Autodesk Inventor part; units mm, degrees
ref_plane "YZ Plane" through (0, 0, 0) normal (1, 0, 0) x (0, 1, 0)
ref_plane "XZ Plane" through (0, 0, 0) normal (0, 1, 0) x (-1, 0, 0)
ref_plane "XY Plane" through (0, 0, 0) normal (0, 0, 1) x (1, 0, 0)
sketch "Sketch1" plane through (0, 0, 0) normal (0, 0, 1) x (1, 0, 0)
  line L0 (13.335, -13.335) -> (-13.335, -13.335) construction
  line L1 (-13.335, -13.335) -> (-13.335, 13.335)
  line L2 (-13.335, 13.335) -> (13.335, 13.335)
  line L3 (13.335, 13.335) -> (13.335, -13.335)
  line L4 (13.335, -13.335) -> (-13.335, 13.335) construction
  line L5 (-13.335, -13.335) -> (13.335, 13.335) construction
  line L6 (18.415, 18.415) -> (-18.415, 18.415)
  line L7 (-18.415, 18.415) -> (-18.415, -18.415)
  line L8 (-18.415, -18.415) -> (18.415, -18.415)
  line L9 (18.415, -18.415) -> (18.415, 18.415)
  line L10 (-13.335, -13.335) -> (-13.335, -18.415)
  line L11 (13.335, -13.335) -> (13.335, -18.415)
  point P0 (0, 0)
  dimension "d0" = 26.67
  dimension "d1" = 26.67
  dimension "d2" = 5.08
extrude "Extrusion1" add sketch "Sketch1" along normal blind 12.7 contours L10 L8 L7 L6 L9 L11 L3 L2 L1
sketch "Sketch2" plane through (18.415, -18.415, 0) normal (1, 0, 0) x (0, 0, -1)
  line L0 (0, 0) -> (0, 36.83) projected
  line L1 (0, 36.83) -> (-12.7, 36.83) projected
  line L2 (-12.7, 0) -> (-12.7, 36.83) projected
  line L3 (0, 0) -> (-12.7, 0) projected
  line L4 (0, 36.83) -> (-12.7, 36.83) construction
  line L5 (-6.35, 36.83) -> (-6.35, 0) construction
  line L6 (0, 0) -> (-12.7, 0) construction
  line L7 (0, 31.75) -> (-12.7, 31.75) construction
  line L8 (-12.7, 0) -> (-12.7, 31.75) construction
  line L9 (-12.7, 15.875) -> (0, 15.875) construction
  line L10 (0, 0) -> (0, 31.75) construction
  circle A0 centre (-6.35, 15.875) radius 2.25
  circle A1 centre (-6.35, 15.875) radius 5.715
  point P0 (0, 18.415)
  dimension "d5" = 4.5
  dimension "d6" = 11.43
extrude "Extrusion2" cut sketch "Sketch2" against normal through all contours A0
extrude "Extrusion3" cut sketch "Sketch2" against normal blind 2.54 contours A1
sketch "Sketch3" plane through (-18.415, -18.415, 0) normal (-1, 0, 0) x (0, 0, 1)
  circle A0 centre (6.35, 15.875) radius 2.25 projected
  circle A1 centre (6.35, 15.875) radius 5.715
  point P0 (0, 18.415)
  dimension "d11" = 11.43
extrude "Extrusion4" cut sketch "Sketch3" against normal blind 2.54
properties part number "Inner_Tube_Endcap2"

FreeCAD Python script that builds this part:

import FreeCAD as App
import Part
import Sketcher
from FreeCAD import Vector
Q = App.Units.Quantity

doc = App.newDocument("Part")
body = doc.addObject("PartDesign::Body", "Body")

# Sketch on XY plane
sketch1 = doc.addObject("Sketcher::SketchObject", "Sketch")
body.addObject(sketch1)
sketch1.AttachmentSupport = (doc.XY_Plane, [""])
sketch1.MapMode = "FlatFace"
sketch1.addGeometry([
    Part.LineSegment(Vector(-13, -18, 0), Vector(-13, 13, 0)),  # 0
    Part.LineSegment(Vector(-13, 13, 0), Vector(13, 13, 0)),  # 1
    Part.LineSegment(Vector(13, 13, 0), Vector(13, -18, 0)),  # 2
    Part.LineSegment(Vector(13, -18, 0), Vector(18, -18, 0)),  # 3
    Part.LineSegment(Vector(18, -18, 0), Vector(18, 18, 0)),  # 4
    Part.LineSegment(Vector(18, 18, 0), Vector(-18, 18, 0)),  # 5
    Part.LineSegment(Vector(-18, 18, 0), Vector(-18, -18, 0)),  # 6
    Part.LineSegment(Vector(-18, -18, 0), Vector(-13, -18, 0)),  # 7
], False)
sketch1.addConstraint([
    Sketcher.Constraint("Coincident", 0, 2, 1, 1),
    Sketcher.Constraint("Coincident", 1, 2, 2, 1),
    Sketcher.Constraint("Coincident", 2, 2, 3, 1),
    Sketcher.Constraint("Coincident", 3, 2, 4, 1),
    Sketcher.Constraint("Coincident", 4, 2, 5, 1),
    Sketcher.Constraint("Coincident", 5, 2, 6, 1),
    Sketcher.Constraint("Coincident", 6, 2, 7, 1),
    Sketcher.Constraint("Coincident", 7, 2, 0, 1),
    Sketcher.Constraint("Vertical", 0),
    Sketcher.Constraint("Horizontal", 1),
    Sketcher.Constraint("Vertical", 2),
    Sketcher.Constraint("Horizontal", 3),
    Sketcher.Constraint("Vertical", 4),
    Sketcher.Constraint("Horizontal", 5),
    Sketcher.Constraint("Vertical", 6),
    Sketcher.Constraint("Horizontal", 7),
    Sketcher.Constraint("Symmetric", 3, 2, 5, 2, -1, 1),
    Sketcher.Constraint("Symmetric", 2, 2, 7, 2, -2),
    Sketcher.Constraint("Equal", 5, 4),
    Sketcher.Constraint("DistanceX", 3, 1, 3, 2, Q("0.2 in")),
    Sketcher.Constraint("DistanceX", 1, 1, 1, 2, Q("1.05 in")),
    Sketcher.Constraint("DistanceY", 1, 2, 4, 2, Q("0.2 in")),
])
pad1 = doc.addObject("PartDesign::Pad", "Pad")
body.addObject(pad1)
pad1.Profile = sketch1
pad1.Length = Q("0.5 in")

# Sketch on YZ plane
sketch2 = doc.addObject("Sketcher::SketchObject", "Sketch001")
body.addObject(sketch2)
sketch2.AttachmentSupport = (doc.YZ_Plane, [""])
sketch2.MapMode = "FlatFace"
sketch2.AttachmentOffset = App.Placement(Vector(0, 0, 0.725 * 25.4), App.Rotation())
sketch2.addGeometry(Part.Circle(Vector(-2.5, 6.3, 0), Vector(0, 0, 1), 2.2), False)
sketch2.addConstraint([
    Sketcher.Constraint("Diameter", 0, 4.5),
    Sketcher.Constraint("DistanceX", 0, 3, -1, 1, Q("0.1 in")),
    Sketcher.Constraint("DistanceY", -1, 1, 0, 3, Q("0.25 in")),
])
pocket1 = doc.addObject("PartDesign::Pocket", "Pocket")
body.addObject(pocket1)
pocket1.Profile = sketch2
pocket1.Type = "ThroughAll"

# Sketch on YZ plane
sketch3 = doc.addObject("Sketcher::SketchObject", "Sketch002")
body.addObject(sketch3)
sketch3.AttachmentSupport = (doc.YZ_Plane, [""])
sketch3.MapMode = "FlatFace"
sketch3.AttachmentOffset = App.Placement(Vector(0, 0, 0.725 * 25.4), App.Rotation())
sketch3.addGeometry([
    Part.Circle(Vector(-2.5, 6.3, 0), Vector(0, 0, 1), 5.7),
    Part.Circle(Vector(-2.5, 6.3, 0), Vector(0, 0, 1), 2.2),
], False)
sketch3.addConstraint([
    Sketcher.Constraint("Coincident", 1, 3, 0, 3),
    Sketcher.Constraint("Diameter", 0, Q("0.45 in")),
    Sketcher.Constraint("Diameter", 1, 4.5),
    Sketcher.Constraint("DistanceX", 0, 3, -1, 1, Q("0.1 in")),
    Sketcher.Constraint("DistanceY", -1, 1, 0, 3, Q("0.25 in")),
])
pocket2 = doc.addObject("PartDesign::Pocket", "Pocket001")
body.addObject(pocket2)
pocket2.Profile = sketch3
pocket2.Length = Q("0.1 in")

# Sketch on YZ plane
sketch4 = doc.addObject("Sketcher::SketchObject", "Sketch003")
body.addObject(sketch4)
sketch4.AttachmentSupport = (doc.YZ_Plane, [""])
sketch4.MapMode = "FlatFace"
sketch4.AttachmentOffset = App.Placement(Vector(0, 0, -0.725 * 25.4), App.Rotation())
sketch4.addGeometry([
    Part.Circle(Vector(-2.5, 6.3, 0), Vector(0, 0, 1), 5.7),
    Part.Circle(Vector(-2.5, 6.3, 0), Vector(0, 0, 1), 2.2),
], False)
sketch4.addConstraint([
    Sketcher.Constraint("Coincident", 1, 3, 0, 3),
    Sketcher.Constraint("Diameter", 0, Q("0.45 in")),
    Sketcher.Constraint("DistanceX", 0, 3, -1, 1, Q("0.1 in")),
    Sketcher.Constraint("Diameter", 1, 4.5),
    Sketcher.Constraint("DistanceY", -1, 1, 0, 3, Q("0.25 in")),
])
pocket3 = doc.addObject("PartDesign::Pocket", "Pocket002")
body.addObject(pocket3)
pocket3.Profile = sketch4
pocket3.Length = Q("0.1 in")
pocket3.Reversed = True

doc.recompute()
